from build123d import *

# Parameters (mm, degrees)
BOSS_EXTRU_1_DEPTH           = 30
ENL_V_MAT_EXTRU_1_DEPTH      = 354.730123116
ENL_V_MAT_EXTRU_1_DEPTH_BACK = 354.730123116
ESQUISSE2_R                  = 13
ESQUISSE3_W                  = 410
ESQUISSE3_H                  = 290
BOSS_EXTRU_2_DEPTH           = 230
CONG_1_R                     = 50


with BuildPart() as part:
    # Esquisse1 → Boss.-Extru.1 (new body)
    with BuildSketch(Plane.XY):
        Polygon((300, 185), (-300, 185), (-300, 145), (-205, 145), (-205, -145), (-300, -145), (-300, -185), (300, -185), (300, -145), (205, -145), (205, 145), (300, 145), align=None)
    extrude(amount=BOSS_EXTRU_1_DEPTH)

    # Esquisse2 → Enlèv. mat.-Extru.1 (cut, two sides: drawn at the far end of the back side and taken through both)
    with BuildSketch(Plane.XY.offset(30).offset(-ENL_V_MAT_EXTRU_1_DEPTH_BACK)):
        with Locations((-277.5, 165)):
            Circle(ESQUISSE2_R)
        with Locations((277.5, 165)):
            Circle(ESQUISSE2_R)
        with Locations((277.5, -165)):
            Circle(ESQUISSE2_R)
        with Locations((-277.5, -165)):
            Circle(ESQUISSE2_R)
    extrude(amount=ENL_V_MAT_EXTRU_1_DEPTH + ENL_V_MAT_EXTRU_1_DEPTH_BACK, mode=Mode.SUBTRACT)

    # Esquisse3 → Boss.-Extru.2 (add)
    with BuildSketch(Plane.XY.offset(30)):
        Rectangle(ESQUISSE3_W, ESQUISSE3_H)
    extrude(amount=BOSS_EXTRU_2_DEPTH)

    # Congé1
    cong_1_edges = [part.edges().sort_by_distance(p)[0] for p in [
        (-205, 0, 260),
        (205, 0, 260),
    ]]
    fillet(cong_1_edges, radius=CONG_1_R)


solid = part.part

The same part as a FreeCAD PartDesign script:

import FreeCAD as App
import Part
import Sketcher
from FreeCAD import Vector


def edges_at(feature, points):
    """Names of the edges that pass closest to the given points."""
    edges = feature.Shape.Edges
    near = lambda p: min(range(len(edges)), key=lambda i: edges[i].distToShape(Part.Vertex(*p))[0])
    return sorted({f"Edge{near(p) + 1}" for p in points})

doc = App.newDocument("Part")
body = doc.addObject("PartDesign::Body", "Body")

sketch1 = body.newObject("Sketcher::SketchObject", "Sketch")
sketch1.AttachmentSupport = (doc.getObject("XY_Plane"), [""])
sketch1.MapMode = "FlatFace"
sketch1.addGeometry([
    Part.LineSegment(Vector(300, 185, 0), Vector(-300, 185, 0)),
    Part.LineSegment(Vector(-300, 185, 0), Vector(-300, 145, 0)),
    Part.LineSegment(Vector(-300, 145, 0), Vector(-205, 145, 0)),
    Part.LineSegment(Vector(-205, 145, 0), Vector(-205, -145, 0)),
    Part.LineSegment(Vector(-205, -145, 0), Vector(-300, -145, 0)),
    Part.LineSegment(Vector(-300, -145, 0), Vector(-300, -185, 0)),
    Part.LineSegment(Vector(-300, -185, 0), Vector(300, -185, 0)),
    Part.LineSegment(Vector(300, -185, 0), Vector(300, -145, 0)),
    Part.LineSegment(Vector(300, -145, 0), Vector(205, -145, 0)),
    Part.LineSegment(Vector(205, -145, 0), Vector(205, 145, 0)),
    Part.LineSegment(Vector(205, 145, 0), Vector(300, 145, 0)),
    Part.LineSegment(Vector(300, 145, 0), Vector(300, 185, 0)),
], False)
sketch1.addConstraint([
    Sketcher.Constraint("Coincident", 0, 2, 1, 1),
    Sketcher.Constraint("Coincident", 1, 2, 2, 1),
    Sketcher.Constraint("Coincident", 2, 2, 3, 1),
    Sketcher.Constraint("Coincident", 3, 2, 4, 1),
    Sketcher.Constraint("Coincident", 4, 2, 5, 1),
    Sketcher.Constraint("Coincident", 5, 2, 6, 1),
    Sketcher.Constraint("Coincident", 6, 2, 7, 1),
    Sketcher.Constraint("Coincident", 7, 2, 8, 1),
    Sketcher.Constraint("Coincident", 8, 2, 9, 1),
    Sketcher.Constraint("Coincident", 9, 2, 10, 1),
    Sketcher.Constraint("Coincident", 10, 2, 11, 1),
    Sketcher.Constraint("Coincident", 11, 2, 0, 1),
    Sketcher.Constraint("Horizontal", 0),
    Sketcher.Constraint("Vertical", 1),
    Sketcher.Constraint("Horizontal", 2),
    Sketcher.Constraint("Vertical", 3),
    Sketcher.Constraint("Horizontal", 4),
    Sketcher.Constraint("Vertical", 5),
    Sketcher.Constraint("Horizontal", 6),
    Sketcher.Constraint("Vertical", 7),
    Sketcher.Constraint("Horizontal", 8),
    Sketcher.Constraint("Vertical", 9),
    Sketcher.Constraint("Horizontal", 10),
    Sketcher.Constraint("Vertical", 11),
    Sketcher.Constraint("Symmetric", 0, 2, 6, 2, -1, 1),
    Sketcher.Constraint("Symmetric", 2, 2, 8, 2, -1, 1),
    Sketcher.Constraint("Symmetric", 4, 2, 10, 2, -1, 1),
    Sketcher.Constraint("Symmetric", 4, 2, 7, 2, -2),
    Sketcher.Constraint("DistanceX", 0, 2, 0, 1, 600.0),
    Sketcher.Constraint("DistanceX", 2, 1, 2, 2, 95.0),
    Sketcher.Constraint("DistanceY", 1, 2, 1, 1, 40.0),
    Sketcher.Constraint("DistanceY", 3, 2, 3, 1, 290.0),
])
pad1 = body.newObject("PartDesign::Pad", "Pad")
pad1.Profile = sketch1
pad1.Length = 30

sketch2 = body.newObject("Sketcher::SketchObject", "Sketch001")
sketch2.AttachmentSupport = (doc.getObject("XY_Plane"), [""])
sketch2.MapMode = "FlatFace"
sketch2.AttachmentOffset = App.Placement(Vector(0, 0, 30), App.Rotation())
sketch2.addGeometry([
    Part.Circle(Vector(-278, 165, 0), Vector(0, 0, 1), 13),
    Part.Circle(Vector(278, 165, 0), Vector(0, 0, 1), 13),
    Part.Circle(Vector(278, -165, 0), Vector(0, 0, 1), 13),
    Part.Circle(Vector(-278, -165, 0), Vector(0, 0, 1), 13),
], False)
sketch2.addConstraint([
    Sketcher.Constraint("Equal", 0, 1),
    Sketcher.Constraint("Equal", 1, 2),
    Sketcher.Constraint("Equal", 2, 3),
    Sketcher.Constraint("Symmetric", 0, 3, 2, 3, -1, 1),
    Sketcher.Constraint("Symmetric", 1, 3, 3, 3, -1, 1),
    Sketcher.Constraint("Symmetric", 0, 3, 1, 3, -2),
    Sketcher.Constraint("Diameter", 0, 26.0),
    Sketcher.Constraint("DistanceY", -1, 1, 0, 3, 165.0),
    Sketcher.Constraint("DistanceX", 0, 3, 1, 3, 555.0),
])
pocket1 = body.newObject("PartDesign::Pocket", "Pocket")
pocket1.Profile = sketch2
pocket1.Type = "ThroughAll"
pocket1.Midplane = True

sketch3 = body.newObject("Sketcher::SketchObject", "Sketch002")
sketch3.AttachmentSupport = (doc.getObject("XY_Plane"), [""])
sketch3.MapMode = "FlatFace"
sketch3.AttachmentOffset = App.Placement(Vector(0, 0, 30), App.Rotation())
sketch3.addGeometry([
    Part.LineSegment(Vector(-205, 145, 0), Vector(-205, -145, 0)),
    Part.LineSegment(Vector(-205, -145, 0), Vector(205, -145, 0)),
    Part.LineSegment(Vector(205, -145, 0), Vector(205, 145, 0)),
    Part.LineSegment(Vector(205, 145, 0), Vector(-205, 145, 0)),
], False)
sketch3.addConstraint([
    Sketcher.Constraint("Coincident", 0, 2, 1, 1),
    Sketcher.Constraint("Coincident", 1, 2, 2, 1),
    Sketcher.Constraint("Coincident", 2, 2, 3, 1),
    Sketcher.Constraint("Coincident", 3, 2, 0, 1),
    Sketcher.Constraint("Vertical", 0),
    Sketcher.Constraint("Horizontal", 1),
    Sketcher.Constraint("Vertical", 2),
    Sketcher.Constraint("Horizontal", 3),
    Sketcher.Constraint("Symmetric", 0, 2, 2, 2, -1, 1),
    Sketcher.Constraint("DistanceX", 1, 1, 1, 2, 410.0),
    Sketcher.Constraint("DistanceY", 0, 2, 0, 1, 290.0),
])
pad2 = body.newObject("PartDesign::Pad", "Pad001")
pad2.Profile = sketch3
pad2.Length = 230
doc.recompute()

fillet = body.newObject("PartDesign::Fillet", "Fillet")
fillet.Base = (pad2, edges_at(pad2, [(-205, 0, 260), (205, 0, 260)]))
fillet.Radius = 50

doc.recompute()
